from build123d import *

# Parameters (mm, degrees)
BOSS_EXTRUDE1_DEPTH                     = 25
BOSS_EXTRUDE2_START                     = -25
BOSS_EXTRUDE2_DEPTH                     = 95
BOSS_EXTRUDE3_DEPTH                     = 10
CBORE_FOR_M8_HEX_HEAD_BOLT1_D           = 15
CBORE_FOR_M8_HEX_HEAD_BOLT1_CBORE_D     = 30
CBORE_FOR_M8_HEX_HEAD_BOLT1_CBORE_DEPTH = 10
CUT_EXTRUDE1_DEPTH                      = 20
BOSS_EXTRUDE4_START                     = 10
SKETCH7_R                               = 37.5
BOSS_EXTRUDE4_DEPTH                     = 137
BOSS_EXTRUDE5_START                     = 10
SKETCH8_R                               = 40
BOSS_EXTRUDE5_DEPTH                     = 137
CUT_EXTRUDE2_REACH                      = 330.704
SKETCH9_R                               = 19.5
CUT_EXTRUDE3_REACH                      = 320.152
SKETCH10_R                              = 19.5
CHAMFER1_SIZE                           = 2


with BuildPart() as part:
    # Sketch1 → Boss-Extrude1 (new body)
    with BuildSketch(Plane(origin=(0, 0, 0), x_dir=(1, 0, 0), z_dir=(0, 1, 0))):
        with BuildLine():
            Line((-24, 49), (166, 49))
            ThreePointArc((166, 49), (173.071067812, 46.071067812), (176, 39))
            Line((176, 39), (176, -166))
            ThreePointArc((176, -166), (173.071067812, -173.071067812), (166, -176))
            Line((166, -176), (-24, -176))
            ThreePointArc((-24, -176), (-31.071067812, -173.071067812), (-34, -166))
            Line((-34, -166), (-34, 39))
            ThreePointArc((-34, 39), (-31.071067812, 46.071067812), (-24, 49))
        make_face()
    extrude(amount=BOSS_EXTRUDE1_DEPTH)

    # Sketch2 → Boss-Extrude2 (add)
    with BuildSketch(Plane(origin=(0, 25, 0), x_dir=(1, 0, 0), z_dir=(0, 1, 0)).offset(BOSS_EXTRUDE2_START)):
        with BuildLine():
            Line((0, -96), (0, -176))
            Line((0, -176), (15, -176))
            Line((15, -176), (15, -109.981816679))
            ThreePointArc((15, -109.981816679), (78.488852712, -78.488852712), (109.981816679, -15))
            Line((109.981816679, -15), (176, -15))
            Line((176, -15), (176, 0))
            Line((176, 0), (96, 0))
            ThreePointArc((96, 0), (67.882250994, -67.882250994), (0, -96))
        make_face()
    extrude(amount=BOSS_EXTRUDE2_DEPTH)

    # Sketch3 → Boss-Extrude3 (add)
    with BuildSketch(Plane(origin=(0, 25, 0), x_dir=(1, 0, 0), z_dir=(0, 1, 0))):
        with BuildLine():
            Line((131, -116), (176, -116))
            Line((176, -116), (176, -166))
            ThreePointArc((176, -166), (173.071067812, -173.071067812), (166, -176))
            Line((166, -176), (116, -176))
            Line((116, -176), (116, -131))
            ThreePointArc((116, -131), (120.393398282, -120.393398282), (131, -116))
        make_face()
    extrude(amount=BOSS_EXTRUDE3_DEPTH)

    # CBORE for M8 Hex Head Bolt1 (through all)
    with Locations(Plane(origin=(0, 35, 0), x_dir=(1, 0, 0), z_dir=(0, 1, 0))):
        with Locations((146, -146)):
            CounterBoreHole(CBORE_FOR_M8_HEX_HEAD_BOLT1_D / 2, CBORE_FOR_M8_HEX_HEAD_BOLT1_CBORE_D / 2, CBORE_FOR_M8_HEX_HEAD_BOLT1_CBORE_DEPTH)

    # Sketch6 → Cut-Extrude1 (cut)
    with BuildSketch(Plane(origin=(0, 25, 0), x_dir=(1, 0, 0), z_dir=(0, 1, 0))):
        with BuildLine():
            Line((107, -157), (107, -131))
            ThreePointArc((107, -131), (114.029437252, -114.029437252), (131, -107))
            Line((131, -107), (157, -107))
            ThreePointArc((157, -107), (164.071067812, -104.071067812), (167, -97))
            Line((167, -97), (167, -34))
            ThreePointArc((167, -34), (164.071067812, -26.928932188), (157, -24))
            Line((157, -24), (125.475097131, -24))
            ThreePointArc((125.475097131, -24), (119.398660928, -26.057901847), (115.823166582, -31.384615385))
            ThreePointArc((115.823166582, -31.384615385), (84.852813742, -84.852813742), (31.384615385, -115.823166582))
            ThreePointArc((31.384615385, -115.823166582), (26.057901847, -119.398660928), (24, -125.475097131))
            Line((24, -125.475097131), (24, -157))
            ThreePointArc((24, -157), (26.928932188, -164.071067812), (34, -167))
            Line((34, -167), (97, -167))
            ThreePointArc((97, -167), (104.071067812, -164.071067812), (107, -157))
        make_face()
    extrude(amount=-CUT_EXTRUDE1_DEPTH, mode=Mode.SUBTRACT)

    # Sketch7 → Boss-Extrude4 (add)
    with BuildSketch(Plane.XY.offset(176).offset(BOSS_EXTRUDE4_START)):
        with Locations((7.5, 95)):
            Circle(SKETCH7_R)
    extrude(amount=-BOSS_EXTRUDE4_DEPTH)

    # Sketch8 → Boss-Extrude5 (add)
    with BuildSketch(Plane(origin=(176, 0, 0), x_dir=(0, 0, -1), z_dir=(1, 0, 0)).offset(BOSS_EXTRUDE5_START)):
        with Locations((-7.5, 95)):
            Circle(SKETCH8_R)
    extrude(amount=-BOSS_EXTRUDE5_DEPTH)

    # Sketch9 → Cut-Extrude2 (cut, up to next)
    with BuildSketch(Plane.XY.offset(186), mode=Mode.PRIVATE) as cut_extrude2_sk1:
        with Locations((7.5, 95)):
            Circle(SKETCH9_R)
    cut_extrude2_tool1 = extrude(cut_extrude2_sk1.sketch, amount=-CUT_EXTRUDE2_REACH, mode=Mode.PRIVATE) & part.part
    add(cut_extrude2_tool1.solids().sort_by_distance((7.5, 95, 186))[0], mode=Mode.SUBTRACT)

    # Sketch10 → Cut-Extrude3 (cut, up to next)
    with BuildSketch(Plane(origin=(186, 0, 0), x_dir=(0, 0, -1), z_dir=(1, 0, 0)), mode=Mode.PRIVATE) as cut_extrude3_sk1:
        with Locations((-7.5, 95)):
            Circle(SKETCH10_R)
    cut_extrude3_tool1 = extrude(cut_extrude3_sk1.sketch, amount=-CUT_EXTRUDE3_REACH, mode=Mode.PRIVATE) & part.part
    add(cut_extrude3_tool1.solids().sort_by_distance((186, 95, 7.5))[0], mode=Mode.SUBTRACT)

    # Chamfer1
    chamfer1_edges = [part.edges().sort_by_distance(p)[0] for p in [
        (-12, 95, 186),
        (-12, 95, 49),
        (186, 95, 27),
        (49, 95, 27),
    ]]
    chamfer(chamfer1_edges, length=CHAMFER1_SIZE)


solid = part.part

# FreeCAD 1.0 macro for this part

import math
import FreeCAD as App
import Part
import Sketcher
from FreeCAD import Vector


def edges_at(feature, points):
    """Names of the edges that pass closest to the given points."""
    edges = feature.Shape.Edges
    near = lambda p: min(range(len(edges)), key=lambda i: edges[i].distToShape(Part.Vertex(*p))[0])
    return sorted({f"Edge{near(p) + 1}" for p in points})

doc = App.newDocument("Part")
body = doc.addObject("PartDesign::Body", "Body")

sketch1 = doc.addObject("Sketcher::SketchObject", "Sketch")
body.addObject(sketch1)
sketch1.AttachmentSupport = (doc.XZ_Plane, [""])
sketch1.MapMode = "FlatFace"
sketch1.addGeometry([
    Part.LineSegment(Vector(166, -49, 0), Vector(-24, -49, 0)),
    Part.ArcOfCircle(Part.Circle(Vector(-24, -39, 0), Vector(0, 0, 1), 10), math.radians(180), math.radians(270)),
    Part.LineSegment(Vector(-34, -39, 0), Vector(-34, 166, 0)),
    Part.ArcOfCircle(Part.Circle(Vector(-24, 166, 0), Vector(0, 0, 1), 10), math.radians(90), math.radians(180)),
    Part.LineSegment(Vector(-24, 176, 0), Vector(166, 176, 0)),
    Part.ArcOfCircle(Part.Circle(Vector(166, 166, 0), Vector(0, 0, 1), 10), math.radians(0), math.radians(90)),
    Part.LineSegment(Vector(176, 166, 0), Vector(176, -39, 0)),
    Part.ArcOfCircle(Part.Circle(Vector(166, -39, 0), Vector(0, 0, 1), 10), math.radians(-90), math.radians(0)),
], False)
sketch1.addConstraint([
    Sketcher.Constraint("Tangent", 0, 2, 1, 2),
    Sketcher.Constraint("Tangent", 1, 1, 2, 1),
    Sketcher.Constraint("Tangent", 2, 2, 3, 2),
    Sketcher.Constraint("Tangent", 3, 1, 4, 1),
    Sketcher.Constraint("Tangent", 4, 2, 5, 2),
    Sketcher.Constraint("Tangent", 5, 1, 6, 1),
    Sketcher.Constraint("Tangent", 6, 2, 7, 2),
    Sketcher.Constraint("Tangent", 7, 1, 0, 1),
    Sketcher.Constraint("Horizontal", 0),
    Sketcher.Constraint("Vertical", 2),
    Sketcher.Constraint("Horizontal", 4),
    Sketcher.Constraint("Vertical", 6),
    Sketcher.Constraint("Equal", 1, 3),
    Sketcher.Constraint("Equal", 3, 5),
    Sketcher.Constraint("Equal", 5, 7),
    Sketcher.Constraint("Radius", 1, 10.0),
    Sketcher.Constraint("DistanceX", 0, 2, 0, 1, 190.0),
    Sketcher.Constraint("DistanceY", 2, 1, 2, 2, 205.0),
    Sketcher.Constraint("DistanceX", 1, 3, -1, 1, 24.0),
    Sketcher.Constraint("DistanceY", 1, 3, -1, 1, 39.0),
])
pad1 = doc.addObject("PartDesign::Pad", "Pad")
body.addObject(pad1)
pad1.Profile = sketch1
pad1.Length = 25
pad1.Reversed = True

sketch2 = doc.addObject("Sketcher::SketchObject", "Sketch001")
body.addObject(sketch2)
sketch2.AttachmentSupport = (doc.XZ_Plane, [""])
sketch2.MapMode = "FlatFace"
sketch2.addGeometry([
    Part.LineSegment(Vector(0, 96, 0), Vector(0, 176, 0)),
    Part.LineSegment(Vector(0, 176, 0), Vector(15, 176, 0)),
    Part.LineSegment(Vector(15, 176, 0), Vector(15, 109.981817, 0)),
    Part.ArcOfCircle(Part.Circle(Vector(0, 0, 0), Vector(0, 0, 1), 111), math.radians(7.766434), math.radians(82.233566)),
    Part.LineSegment(Vector(109.981817, 15, 0), Vector(176, 15, 0)),
    Part.LineSegment(Vector(176, 15, 0), Vector(176, 0, 0)),
    Part.LineSegment(Vector(176, 0, 0), Vector(96, 0, 0)),
    Part.ArcOfCircle(Part.Circle(Vector(0, 0, 0), Vector(0, 0, 1), 96), math.radians(0), math.radians(90)),
], False)
sketch2.addConstraint([
    Sketcher.Constraint("Coincident", 0, 2, 1, 1),
    Sketcher.Constraint("Coincident", 1, 2, 2, 1),
    Sketcher.Constraint("Coincident", 2, 2, 3, 2),
    Sketcher.Constraint("Coincident", 3, 1, 4, 1),
    Sketcher.Constraint("Coincident", 4, 2, 5, 1),
    Sketcher.Constraint("Coincident", 5, 2, 6, 1),
    Sketcher.Constraint("Coincident", 6, 2, 7, 1),
    Sketcher.Constraint("Coincident", 7, 2, 0, 1),
    Sketcher.Constraint("Vertical", 0),
    Sketcher.Constraint("Horizontal", 1),
    Sketcher.Constraint("Vertical", 2),
    Sketcher.Constraint("Horizontal", 4),
    Sketcher.Constraint("Vertical", 5),
    Sketcher.Constraint("Horizontal", 6),
    Sketcher.Constraint("Coincident", 3, 3, -1, 1),
    Sketcher.Constraint("Coincident", 7, 3, -1, 1),
    Sketcher.Constraint("PointOnObject", 0, 2, -2),
    Sketcher.Constraint("PointOnObject", 5, 2, -1),
    Sketcher.Constraint("Equal", 6, 0),
    Sketcher.Constraint("Equal", 4, 2),
    Sketcher.Constraint("Radius", 3, 111.0),
    Sketcher.Constraint("Radius", 7, 96.0),
    Sketcher.Constraint("DistanceX", 1, 1, 1, 2, 15.0),
    Sketcher.Constraint("DistanceX", 6, 2, 6, 1, 80.0),
])
pad2 = doc.addObject("PartDesign::Pad", "Pad001")
body.addObject(pad2)
pad2.Profile = sketch2
pad2.Length = 95
pad2.Reversed = True

sketch3 = doc.addObject("Sketcher::SketchObject", "Sketch002")
body.addObject(sketch3)
sketch3.AttachmentSupport = (doc.XZ_Plane, [""])
sketch3.MapMode = "FlatFace"
sketch3.AttachmentOffset = App.Placement(Vector(0, 0, -25), App.Rotation())
sketch3.addGeometry([
    Part.LineSegment(Vector(176, 116, 0), Vector(131, 116, 0)),
    Part.ArcOfCircle(Part.Circle(Vector(131, 131, 0), Vector(0, 0, 1), 15), math.radians(180), math.radians(270)),
    Part.LineSegment(Vector(116, 131, 0), Vector(116, 176, 0)),
    Part.LineSegment(Vector(116, 176, 0), Vector(166, 176, 0)),
    Part.ArcOfCircle(Part.Circle(Vector(166, 166, 0), Vector(0, 0, 1), 10), math.radians(0), math.radians(90)),
    Part.LineSegment(Vector(176, 166, 0), Vector(176, 116, 0)),
], False)
sketch3.addConstraint([
    Sketcher.Constraint("Tangent", 0, 2, 1, 2),
    Sketcher.Constraint("Tangent", 1, 1, 2, 1),
    Sketcher.Constraint("Coincident", 2, 2, 3, 1),
    Sketcher.Constraint("Tangent", 3, 2, 4, 2),
    Sketcher.Constraint("Tangent", 4, 1, 5, 1),
    Sketcher.Constraint("Coincident", 5, 2, 0, 1),
    Sketcher.Constraint("Horizontal", 0),
    Sketcher.Constraint("Vertical", 2),
    Sketcher.Constraint("Horizontal", 3),
    Sketcher.Constraint("Vertical", 5),
    Sketcher.Constraint("Equal", 0, 2),
    Sketcher.Constraint("Radius", 1, 15.0),
    Sketcher.Constraint("Radius", 4, 10.0),
    Sketcher.Constraint("DistanceX", 0, 2, 0, 1, 45.0),
    Sketcher.Constraint("DistanceX", -1, 1, 1, 3, 131.0),
    Sketcher.Constraint("DistanceY", -1, 1, 1, 3, 131.0),
])
pad3 = doc.addObject("PartDesign::Pad", "Pad002")
body.addObject(pad3)
pad3.Profile = sketch3
pad3.Length = 10
pad3.Reversed = True

sketch4 = doc.addObject("Sketcher::SketchObject", "Sketch003")
body.addObject(sketch4)
sketch4.AttachmentSupport = (doc.XZ_Plane, [""])
sketch4.MapMode = "FlatFace"
sketch4.AttachmentOffset = App.Placement(Vector(0, 0, -35), App.Rotation())
sketch4.addGeometry(Part.Circle(Vector(146, 146, 0), Vector(0, 0, 1), 7.5), False)
sketch4.addConstraint([
    Sketcher.Constraint("Diameter", 0, 15.0),
    Sketcher.Constraint("DistanceX", -1, 1, 0, 3, 146.0),
    Sketcher.Constraint("DistanceY", -1, 1, 0, 3, 146.0),
])
doc.recompute()
hole = doc.addObject("PartDesign::Hole", "Hole")
body.addObject(hole)
hole.Profile = sketch4
hole.ThreadType = "None"
hole.Diameter = 15
hole.DepthType = "ThroughAll"
hole.HoleCutType = "Counterbore"
hole.HoleCutDiameter = 30
hole.HoleCutDepth = 10
hole.Reversed = True

sketch5 = doc.addObject("Sketcher::SketchObject", "Sketch004")
body.addObject(sketch5)
sketch5.AttachmentSupport = (doc.XZ_Plane, [""])
sketch5.MapMode = "FlatFace"
sketch5.AttachmentOffset = App.Placement(Vector(0, 0, -25), App.Rotation())
sketch5.addGeometry([
    Part.LineSegment(Vector(107, 157, 0), Vector(107, 131, 0)),
    Part.ArcOfCircle(Part.Circle(Vector(131, 131, 0), Vector(0, 0, 1), 24), math.radians(-180), math.radians(-90)),
    Part.LineSegment(Vector(131, 107, 0), Vector(157, 107, 0)),
    Part.ArcOfCircle(Part.Circle(Vector(157, 97, 0), Vector(0, 0, 1), 10), math.radians(0), math.radians(90)),
    Part.LineSegment(Vector(167, 97, 0), Vector(167, 34, 0)),
    Part.ArcOfCircle(Part.Circle(Vector(157, 34, 0), Vector(0, 0, 1), 10), math.radians(-90), math.radians(0)),
    Part.LineSegment(Vector(157, 24, 0), Vector(125.475097, 24, 0)),
    Part.ArcOfCircle(Part.Circle(Vector(125.475097, 34, 0), Vector(0, 0, 1), 10), math.radians(-164.838631), math.radians(-90)),
    Part.ArcOfCircle(Part.Circle(Vector(0, 0, 0), Vector(0, 0, 1), 120), math.radians(15.161369), math.radians(74.838631)),
    Part.ArcOfCircle(Part.Circle(Vector(34, 125.475097, 0), Vector(0, 0, 1), 10), math.radians(180), math.radians(254.838631)),
    Part.LineSegment(Vector(24, 125.475097, 0), Vector(24, 157, 0)),
    Part.ArcOfCircle(Part.Circle(Vector(34, 157, 0), Vector(0, 0, 1), 10), math.radians(90), math.radians(180)),
    Part.LineSegment(Vector(34, 167, 0), Vector(97, 167, 0)),
    Part.ArcOfCircle(Part.Circle(Vector(97, 157, 0), Vector(0, 0, 1), 10), math.radians(0), math.radians(90)),
], False)
sketch5.addConstraint([
    Sketcher.Constraint("Tangent", 0, 2, 1, 1),
    Sketcher.Constraint("Tangent", 1, 2, 2, 1),
    Sketcher.Constraint("Tangent", 2, 2, 3, 2),
    Sketcher.Constraint("Tangent", 3, 1, 4, 1),
    Sketcher.Constraint("Tangent", 4, 2, 5, 2),
    Sketcher.Constraint("Tangent", 5, 1, 6, 1),
    Sketcher.Constraint("Tangent", 6, 2, 7, 2),
    Sketcher.Constraint("Tangent", 7, 1, 8, 1),
    Sketcher.Constraint("Tangent", 8, 2, 9, 2),
    Sketcher.Constraint("Tangent", 9, 1, 10, 1),
    Sketcher.Constraint("Tangent", 10, 2, 11, 2),
    Sketcher.Constraint("Tangent", 11, 1, 12, 1),
    Sketcher.Constraint("Tangent", 12, 2, 13, 2),
    Sketcher.Constraint("Tangent", 13, 1, 0, 1),
    Sketcher.Constraint("Vertical", 0),
    Sketcher.Constraint("Horizontal", 2),
    Sketcher.Constraint("Vertical", 4),
    Sketcher.Constraint("Horizontal", 6),
    Sketcher.Constraint("Vertical", 10),
    Sketcher.Constraint("Horizontal", 12),
    Sketcher.Constraint("Coincident", 8, 3, -1, 1),
    Sketcher.Constraint("Equal", 3, 5),
    Sketcher.Constraint("Equal", 5, 7),
    Sketcher.Constraint("Equal", 7, 9),
    Sketcher.Constraint("Equal", 9, 11),
    Sketcher.Constraint("Equal", 11, 13),
    Sketcher.Constraint("Equal", 2, 0),
    Sketcher.Constraint("Equal", 12, 4),
    Sketcher.Constraint("Equal", 6, 10),
    Sketcher.Constraint("Radius", 1, 24.0),
    Sketcher.Constraint("Radius", 3, 10.0),
    Sketcher.Constraint("Radius", 8, 120.0),
    Sketcher.Constraint("DistanceX", 2, 1, 2, 2, 26.0),
    Sketcher.Constraint("DistanceX", 12, 1, 12, 2, 63.0),
    Sketcher.Constraint("DistanceX", -1, 1, 1, 3, 131.0),
])
pocket1 = doc.addObject("PartDesign::Pocket", "Pocket")
body.addObject(pocket1)
pocket1.Profile = sketch5
pocket1.Length = 20
pocket1.Reversed = True

sketch6 = doc.addObject("Sketcher::SketchObject", "Sketch005")
body.addObject(sketch6)
sketch6.AttachmentSupport = (doc.XY_Plane, [""])
sketch6.MapMode = "FlatFace"
sketch6.AttachmentOffset = App.Placement(Vector(0, 0, 186), App.Rotation())
sketch6.addGeometry(Part.Circle(Vector(7.5, 95, 0), Vector(0, 0, 1), 37.5), False)
sketch6.addConstraint([
    Sketcher.Constraint("Diameter", 0, 75.0),
    Sketcher.Constraint("DistanceY", -1, 1, 0, 3, 95.0),
    Sketcher.Constraint("DistanceX", -1, 1, 0, 3, 7.5),
])
pad4 = doc.addObject("PartDesign::Pad", "Pad003")
body.addObject(pad4)
pad4.Profile = sketch6
pad4.Length = 137
pad4.Reversed = True

sketch7 = doc.addObject("Sketcher::SketchObject", "Sketch006")
body.addObject(sketch7)
sketch7.AttachmentSupport = (doc.YZ_Plane, [""])
sketch7.MapMode = "FlatFace"
sketch7.AttachmentOffset = App.Placement(Vector(0, 0, 186), App.Rotation())
sketch7.addGeometry(Part.Circle(Vector(95, 7.5, 0), Vector(0, 0, 1), 40), False)
sketch7.addConstraint([
    Sketcher.Constraint("Diameter", 0, 80.0),
    Sketcher.Constraint("DistanceX", -1, 1, 0, 3, 95.0),
    Sketcher.Constraint("DistanceY", -1, 1, 0, 3, 7.5),
])
pad5 = doc.addObject("PartDesign::Pad", "Pad004")
body.addObject(pad5)
pad5.Profile = sketch7
pad5.Length = 137
pad5.Reversed = True

sketch8 = doc.addObject("Sketcher::SketchObject", "Sketch007")
body.addObject(sketch8)
sketch8.AttachmentSupport = (doc.XY_Plane, [""])
sketch8.MapMode = "FlatFace"
sketch8.AttachmentOffset = App.Placement(Vector(0, 0, 186), App.Rotation())
sketch8.addGeometry(Part.Circle(Vector(7.5, 95, 0), Vector(0, 0, 1), 19.5), False)
sketch8.addConstraint([
    Sketcher.Constraint("Diameter", 0, 39.0),
    Sketcher.Constraint("DistanceY", -1, 1, 0, 3, 95.0),
    Sketcher.Constraint("DistanceX", -1, 1, 0, 3, 7.5),
])
pocket2 = doc.addObject("PartDesign::Pocket", "Pocket001")
body.addObject(pocket2)
pocket2.Profile = sketch8
pocket2.Type = "UpToFirst"

sketch9 = doc.addObject("Sketcher::SketchObject", "Sketch008")
body.addObject(sketch9)
sketch9.AttachmentSupport = (doc.YZ_Plane, [""])
sketch9.MapMode = "FlatFace"
sketch9.AttachmentOffset = App.Placement(Vector(0, 0, 186), App.Rotation())
sketch9.addGeometry(Part.Circle(Vector(95, 7.5, 0), Vector(0, 0, 1), 19.5), False)
sketch9.addConstraint([
    Sketcher.Constraint("Diameter", 0, 39.0),
    Sketcher.Constraint("DistanceX", -1, 1, 0, 3, 95.0),
    Sketcher.Constraint("DistanceY", -1, 1, 0, 3, 7.5),
])
pocket3 = doc.addObject("PartDesign::Pocket", "Pocket002")
body.addObject(pocket3)
pocket3.Profile = sketch9
pocket3.Type = "UpToFirst"
doc.recompute()

chamfer = doc.addObject("PartDesign::Chamfer", "Chamfer")
body.addObject(chamfer)
chamfer.Base = (pocket3, edges_at(pocket3, [
    (-12, 95, 186),
    (-12, 95, 49),
    (186, 95, 27),
    (49, 95, 27),
]))
chamfer.Size = 2

doc.recompute()
